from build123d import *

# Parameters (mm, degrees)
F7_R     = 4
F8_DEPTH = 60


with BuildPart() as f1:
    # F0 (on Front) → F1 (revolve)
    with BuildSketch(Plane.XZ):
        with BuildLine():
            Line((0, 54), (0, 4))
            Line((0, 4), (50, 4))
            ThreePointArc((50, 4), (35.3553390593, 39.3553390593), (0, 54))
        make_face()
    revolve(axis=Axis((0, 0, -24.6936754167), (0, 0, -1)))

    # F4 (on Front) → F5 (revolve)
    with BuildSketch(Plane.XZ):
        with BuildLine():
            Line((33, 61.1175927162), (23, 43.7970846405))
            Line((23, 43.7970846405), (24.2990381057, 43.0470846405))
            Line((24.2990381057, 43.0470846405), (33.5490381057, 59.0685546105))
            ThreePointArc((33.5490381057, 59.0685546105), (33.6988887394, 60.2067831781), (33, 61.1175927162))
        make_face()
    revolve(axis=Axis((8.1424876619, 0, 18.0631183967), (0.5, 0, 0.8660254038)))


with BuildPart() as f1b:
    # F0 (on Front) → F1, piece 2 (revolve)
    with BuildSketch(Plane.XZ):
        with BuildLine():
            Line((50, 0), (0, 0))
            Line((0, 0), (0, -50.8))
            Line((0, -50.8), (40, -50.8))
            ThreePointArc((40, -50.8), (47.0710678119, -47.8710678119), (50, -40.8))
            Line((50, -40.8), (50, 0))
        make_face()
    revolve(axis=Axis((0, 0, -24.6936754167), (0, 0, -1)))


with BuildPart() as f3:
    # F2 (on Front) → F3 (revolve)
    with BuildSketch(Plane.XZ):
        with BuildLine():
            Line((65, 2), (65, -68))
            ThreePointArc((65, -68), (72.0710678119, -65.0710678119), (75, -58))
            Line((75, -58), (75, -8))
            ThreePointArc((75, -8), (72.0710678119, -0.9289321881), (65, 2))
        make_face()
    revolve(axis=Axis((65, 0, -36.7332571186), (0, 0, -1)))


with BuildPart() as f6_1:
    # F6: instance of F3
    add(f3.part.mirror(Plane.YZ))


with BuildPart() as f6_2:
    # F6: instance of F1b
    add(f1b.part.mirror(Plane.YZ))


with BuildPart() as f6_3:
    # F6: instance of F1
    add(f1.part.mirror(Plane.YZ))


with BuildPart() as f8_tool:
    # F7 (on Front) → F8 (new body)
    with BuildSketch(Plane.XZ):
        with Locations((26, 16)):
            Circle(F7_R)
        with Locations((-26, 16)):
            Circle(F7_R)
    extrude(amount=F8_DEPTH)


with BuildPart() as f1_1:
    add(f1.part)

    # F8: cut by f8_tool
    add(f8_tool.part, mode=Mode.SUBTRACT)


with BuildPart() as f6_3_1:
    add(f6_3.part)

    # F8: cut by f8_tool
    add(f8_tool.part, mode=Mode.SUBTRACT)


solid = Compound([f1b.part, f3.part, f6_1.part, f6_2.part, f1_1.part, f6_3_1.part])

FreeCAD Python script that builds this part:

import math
import FreeCAD as App
import Part
import Sketcher
Q = App.Units.Quantity

doc = App.newDocument("Part")
params = doc.addObject("Spreadsheet::Sheet", "Params")
for row, (alias, value) in enumerate([
    ("sketch1_radius", "50 mm"),
    ("revolution_angle", "360 deg"),
    ("sketch2_radius", "1.5 mm"),
    ("sketch2_length", "20 mm"),
    ("sketch2_length2", "1.5 mm"),
    ("revolution2_angle", "360 deg"),
    ("sketch3_radius", "10 mm"),
    ("sketch3_width", "50 mm"),
    ("sketch3_height", "50.8 mm"),
    ("revolution3_angle", "360 deg"),
    ("sketch4_radius", "10 mm"),
    ("sketch4_height", "70 mm"),
    ("revolution4_angle", "360 deg"),
    ("sketch5_diameter", "8 mm"),
    ("pad1_length", "60 mm"),
], start=1):
    params.set(f"A{row}", alias)
    params.set(f"B{row}", "=" + value)
    params.setAlias(f"B{row}", alias)

body = doc.addObject("PartDesign::Body", "Body")

sketch1 = body.newObject("Sketcher::SketchObject", "Sketch")
sketch1.AttachmentSupport = (doc.getObject("XZ_Plane"), [""])
sketch1.MapMode = "FlatFace"
sketch1.addGeometry([
    Part.LineSegment(App.Vector(0, 54, 0), App.Vector(0, 4, 0)),
    Part.LineSegment(App.Vector(0, 4, 0), App.Vector(50, 4, 0)),
    Part.ArcOfCircle(Part.Circle(App.Vector(0, 4, 0), App.Vector(0, 0, 1), 50), math.radians(0), math.radians(90)),
], False)
sketch1.addConstraint([
    Sketcher.Constraint("Coincident", 0, 2, 1, 1),
    Sketcher.Constraint("Coincident", 1, 2, 2, 1),
    Sketcher.Constraint("Coincident", 2, 2, 0, 1),
    Sketcher.Constraint("Vertical", 0),
    Sketcher.Constraint("Horizontal", 1),
    Sketcher.Constraint("Coincident", 0, 2, 2, 3),
    Sketcher.Constraint("PointOnObject", 2, 3, -2),
    Sketcher.Constraint("Radius", 2, 50.0),
    Sketcher.Constraint("DistanceY", -1, 1, 2, 3, 4.0),
])
sketch1.setExpression("Constraints[7]", "Params.sketch1_radius")
revolution = body.newObject("PartDesign::Revolution", "Revolution")
revolution.Profile = sketch1
revolution.ReferenceAxis = (sketch1, ["V_Axis"])
revolution.setExpression("Angle", "Params.revolution_angle")

sketch2 = body.newObject("Sketcher::SketchObject", "Sketch001")
sketch2.AttachmentSupport = (doc.getObject("XZ_Plane"), [""])
sketch2.MapMode = "FlatFace"
sketch2.addGeometry([
    Part.LineSegment(App.Vector(33, 61.117593, 0), App.Vector(23, 43.797085, 0)),
    Part.LineSegment(App.Vector(23, 43.797085, 0), App.Vector(24.299038, 43.047085, 0)),
    Part.LineSegment(App.Vector(24.299038, 43.047085, 0), App.Vector(33.549038, 59.068555, 0)),
    Part.ArcOfCircle(Part.Circle(App.Vector(32.25, 59.818555, 0), App.Vector(0, 0, 1), 1.5), math.radians(-30), math.radians(60)),
], False)
sketch2.addGeometry(Part.LineSegment(App.Vector(23, 43.797085, 0), App.Vector(33, 61.117593, 0)), True)
sketch2.addConstraint([
    Sketcher.Constraint("Coincident", 0, 2, 1, 1),
    Sketcher.Constraint("Coincident", 1, 2, 2, 1),
    Sketcher.Constraint("Tangent", 2, 2, 3, 1),
    Sketcher.Constraint("Coincident", 3, 2, 0, 1),
    Sketcher.Constraint("Coincident", 4, 1, 0, 2),
    Sketcher.Constraint("Coincident", 4, 2, 3, 2),
    Sketcher.Constraint("Perpendicular", 0, 1),
    Sketcher.Constraint("Perpendicular", 1, 2),
    Sketcher.Constraint("Radius", 3, 1.5),
    Sketcher.Constraint("Angle", 0, Q("-120 deg")),
    Sketcher.Constraint("Distance", 0, 20.0),
    Sketcher.Constraint("DistanceX", -1, 1, 0, 2, 23.0),
    Sketcher.Constraint("Distance", 1, 1.5),
    Sketcher.Constraint("DistanceY", -1, 1, 3, 3, 59.818555),
])
sketch2.setExpression("Constraints[8]", "Params.sketch2_radius")
sketch2.setExpression("Constraints[10]", "Params.sketch2_length")
sketch2.setExpression("Constraints[12]", "Params.sketch2_length2")
revolution2 = body.newObject("PartDesign::Revolution", "Revolution001")
revolution2.Profile = sketch2
revolution2.ReferenceAxis = (sketch2, ["Axis0"])
revolution2.setExpression("Angle", "Params.revolution2_angle")
body2 = doc.addObject("PartDesign::Body", "Body001")

sketch3 = body2.newObject("Sketcher::SketchObject", "Sketch002")
sketch3.AttachmentSupport = (doc.getObject("XZ_Plane001"), [""])
sketch3.MapMode = "FlatFace"
sketch3.addGeometry([
    Part.LineSegment(App.Vector(50, 0, 0), App.Vector(0, 0, 0)),
    Part.LineSegment(App.Vector(0, 0, 0), App.Vector(0, -50.8, 0)),
    Part.LineSegment(App.Vector(0, -50.8, 0), App.Vector(40, -50.8, 0)),
    Part.ArcOfCircle(Part.Circle(App.Vector(40, -40.8, 0), App.Vector(0, 0, 1), 10), math.radians(-90), math.radians(0)),
    Part.LineSegment(App.Vector(50, -40.8, 0), App.Vector(50, 0, 0)),
], False)
sketch3.addConstraint([
    Sketcher.Constraint("Coincident", 0, 2, 1, 1),
    Sketcher.Constraint("Coincident", 1, 2, 2, 1),
    Sketcher.Constraint("Tangent", 2, 2, 3, 1),
    Sketcher.Constraint("Tangent", 3, 2, 4, 1),
    Sketcher.Constraint("Coincident", 4, 2, 0, 1),
    Sketcher.Constraint("Horizontal", 0),
    Sketcher.Constraint("Vertical", 1),
    Sketcher.Constraint("Horizontal", 2),
    Sketcher.Constraint("Vertical", 4),
    Sketcher.Constraint("Coincident", 0, 2, -1, 1),
    Sketcher.Constraint("Radius", 3, 10.0),
    Sketcher.Constraint("DistanceX", 0, 2, 0, 1, 50.0),
    Sketcher.Constraint("DistanceY", 1, 2, 1, 1, 50.8),
])
sketch3.setExpression("Constraints[10]", "Params.sketch3_radius")
sketch3.setExpression("Constraints[11]", "Params.sketch3_width")
sketch3.setExpression("Constraints[12]", "Params.sketch3_height")
revolution3 = body2.newObject("PartDesign::Revolution", "Revolution002")
revolution3.Profile = sketch3
revolution3.ReferenceAxis = (sketch3, ["V_Axis"])
revolution3.setExpression("Angle", "Params.revolution3_angle")
body3 = doc.addObject("PartDesign::Body", "Body002")

sketch4 = body3.newObject("Sketcher::SketchObject", "Sketch003")
sketch4.AttachmentSupport = (doc.getObject("XZ_Plane002"), [""])
sketch4.MapMode = "FlatFace"
sketch4.addGeometry([
    Part.LineSegment(App.Vector(65, 2, 0), App.Vector(65, -68, 0)),
    Part.ArcOfCircle(Part.Circle(App.Vector(65, -58, 0), App.Vector(0, 0, 1), 10), math.radians(-90), math.radians(0)),
    Part.LineSegment(App.Vector(75, -58, 0), App.Vector(75, -8, 0)),
    Part.ArcOfCircle(Part.Circle(App.Vector(65, -8, 0), App.Vector(0, 0, 1), 10), math.radians(0), math.radians(90)),
], False)
sketch4.addGeometry(Part.LineSegment(App.Vector(65, 2, 0), App.Vector(65, -68, 0)), True)
sketch4.addConstraint([
    Sketcher.Constraint("Coincident", 0, 2, 1, 1),
    Sketcher.Constraint("Tangent", 1, 2, 2, 1),
    Sketcher.Constraint("Tangent", 2, 2, 3, 1),
    Sketcher.Constraint("Coincident", 3, 2, 0, 1),
    Sketcher.Constraint("Vertical", 0),
    Sketcher.Constraint("Vertical", 2),
    Sketcher.Constraint("Vertical", 4),
    Sketcher.Constraint("Coincident", 4, 1, 3, 2),
    Sketcher.Constraint("Equal", 1, 3),
    Sketcher.Constraint("Vertical", 3, 3, 0, 2),
    Sketcher.Constraint("Equal", 0, 4),
    Sketcher.Constraint("Radius", 1, 10.0),
    Sketcher.Constraint("DistanceY", 0, 2, 0, 1, 70.0),
    Sketcher.Constraint("DistanceX", -1, 1, 1, 3, 65.0),
    Sketcher.Constraint("DistanceY", 1, 3, -1, 1, 58.0),
])
sketch4.setExpression("Constraints[11]", "Params.sketch4_radius")
sketch4.setExpression("Constraints[12]", "Params.sketch4_height")
revolution4 = body3.newObject("PartDesign::Revolution", "Revolution003")
revolution4.Profile = sketch4
revolution4.ReferenceAxis = (sketch4, ["Axis0"])
revolution4.setExpression("Angle", "Params.revolution4_angle")
body4 = doc.addObject("PartDesign::Body", "Body003")
doc.recompute()

mirroring = doc.addObject("Part::Mirroring", "Mirroring")
mirroring.Source = body3
mirroring.Base = App.Vector(0, 0, 0)
mirroring.Normal = App.Vector(1, 0, 0)
body4.BaseFeature = mirroring
doc.recompute()
body5 = doc.addObject("PartDesign::Body", "Body004")
doc.recompute()

mirroring2 = doc.addObject("Part::Mirroring", "Mirroring001")
mirroring2.Source = body2
mirroring2.Base = App.Vector(0, 0, 0)
mirroring2.Normal = App.Vector(1, 0, 0)
body5.BaseFeature = mirroring2
doc.recompute()
body6 = doc.addObject("PartDesign::Body", "Body005")
doc.recompute()

mirroring3 = doc.addObject("Part::Mirroring", "Mirroring002")
mirroring3.Source = body
mirroring3.Base = App.Vector(0, 0, 0)
mirroring3.Normal = App.Vector(1, 0, 0)
body6.BaseFeature = mirroring3
doc.recompute()
body7 = doc.addObject("PartDesign::Body", "Body006")
body7.AllowCompound = True

sketch5 = body7.newObject("Sketcher::SketchObject", "Sketch004")
sketch5.AttachmentSupport = (doc.getObject("XZ_Plane006"), [""])
sketch5.MapMode = "FlatFace"
sketch5.addGeometry([
    Part.Circle(App.Vector(26, 16, 0), App.Vector(0, 0, 1), 4),
    Part.Circle(App.Vector(-26, 16, 0), App.Vector(0, 0, 1), 4),
], False)
sketch5.addConstraint([
    Sketcher.Constraint("Equal", 0, 1),
    Sketcher.Constraint("Symmetric", 0, 3, 1, 3, -2),
    Sketcher.Constraint("Diameter", 0, 8.0),
    Sketcher.Constraint("DistanceX", -1, 1, 0, 3, 26.0),
    Sketcher.Constraint("DistanceY", -1, 1, 0, 3, 16.0),
])
sketch5.setExpression("Constraints[2]", "Params.sketch5_diameter")
pad1 = body7.newObject("PartDesign::Pad", "Pad")
pad1.Profile = sketch5
pad1.setExpression("Length", "Params.pad1_length")
doc.recompute()

body8 = doc.addObject("PartDesign::Body", "Body007")
body8.BaseFeature = body7
boolean = body.newObject("PartDesign::Boolean", "Boolean")
boolean.Type = "Cut"
boolean.addObjects([body8])
doc.recompute()

boolean2 = body6.newObject("PartDesign::Boolean", "Boolean001")
boolean2.Type = "Cut"
boolean2.addObjects([body7])
mirroring.Visibility = False
mirroring2.Visibility = False
mirroring3.Visibility = False

doc.recompute()
